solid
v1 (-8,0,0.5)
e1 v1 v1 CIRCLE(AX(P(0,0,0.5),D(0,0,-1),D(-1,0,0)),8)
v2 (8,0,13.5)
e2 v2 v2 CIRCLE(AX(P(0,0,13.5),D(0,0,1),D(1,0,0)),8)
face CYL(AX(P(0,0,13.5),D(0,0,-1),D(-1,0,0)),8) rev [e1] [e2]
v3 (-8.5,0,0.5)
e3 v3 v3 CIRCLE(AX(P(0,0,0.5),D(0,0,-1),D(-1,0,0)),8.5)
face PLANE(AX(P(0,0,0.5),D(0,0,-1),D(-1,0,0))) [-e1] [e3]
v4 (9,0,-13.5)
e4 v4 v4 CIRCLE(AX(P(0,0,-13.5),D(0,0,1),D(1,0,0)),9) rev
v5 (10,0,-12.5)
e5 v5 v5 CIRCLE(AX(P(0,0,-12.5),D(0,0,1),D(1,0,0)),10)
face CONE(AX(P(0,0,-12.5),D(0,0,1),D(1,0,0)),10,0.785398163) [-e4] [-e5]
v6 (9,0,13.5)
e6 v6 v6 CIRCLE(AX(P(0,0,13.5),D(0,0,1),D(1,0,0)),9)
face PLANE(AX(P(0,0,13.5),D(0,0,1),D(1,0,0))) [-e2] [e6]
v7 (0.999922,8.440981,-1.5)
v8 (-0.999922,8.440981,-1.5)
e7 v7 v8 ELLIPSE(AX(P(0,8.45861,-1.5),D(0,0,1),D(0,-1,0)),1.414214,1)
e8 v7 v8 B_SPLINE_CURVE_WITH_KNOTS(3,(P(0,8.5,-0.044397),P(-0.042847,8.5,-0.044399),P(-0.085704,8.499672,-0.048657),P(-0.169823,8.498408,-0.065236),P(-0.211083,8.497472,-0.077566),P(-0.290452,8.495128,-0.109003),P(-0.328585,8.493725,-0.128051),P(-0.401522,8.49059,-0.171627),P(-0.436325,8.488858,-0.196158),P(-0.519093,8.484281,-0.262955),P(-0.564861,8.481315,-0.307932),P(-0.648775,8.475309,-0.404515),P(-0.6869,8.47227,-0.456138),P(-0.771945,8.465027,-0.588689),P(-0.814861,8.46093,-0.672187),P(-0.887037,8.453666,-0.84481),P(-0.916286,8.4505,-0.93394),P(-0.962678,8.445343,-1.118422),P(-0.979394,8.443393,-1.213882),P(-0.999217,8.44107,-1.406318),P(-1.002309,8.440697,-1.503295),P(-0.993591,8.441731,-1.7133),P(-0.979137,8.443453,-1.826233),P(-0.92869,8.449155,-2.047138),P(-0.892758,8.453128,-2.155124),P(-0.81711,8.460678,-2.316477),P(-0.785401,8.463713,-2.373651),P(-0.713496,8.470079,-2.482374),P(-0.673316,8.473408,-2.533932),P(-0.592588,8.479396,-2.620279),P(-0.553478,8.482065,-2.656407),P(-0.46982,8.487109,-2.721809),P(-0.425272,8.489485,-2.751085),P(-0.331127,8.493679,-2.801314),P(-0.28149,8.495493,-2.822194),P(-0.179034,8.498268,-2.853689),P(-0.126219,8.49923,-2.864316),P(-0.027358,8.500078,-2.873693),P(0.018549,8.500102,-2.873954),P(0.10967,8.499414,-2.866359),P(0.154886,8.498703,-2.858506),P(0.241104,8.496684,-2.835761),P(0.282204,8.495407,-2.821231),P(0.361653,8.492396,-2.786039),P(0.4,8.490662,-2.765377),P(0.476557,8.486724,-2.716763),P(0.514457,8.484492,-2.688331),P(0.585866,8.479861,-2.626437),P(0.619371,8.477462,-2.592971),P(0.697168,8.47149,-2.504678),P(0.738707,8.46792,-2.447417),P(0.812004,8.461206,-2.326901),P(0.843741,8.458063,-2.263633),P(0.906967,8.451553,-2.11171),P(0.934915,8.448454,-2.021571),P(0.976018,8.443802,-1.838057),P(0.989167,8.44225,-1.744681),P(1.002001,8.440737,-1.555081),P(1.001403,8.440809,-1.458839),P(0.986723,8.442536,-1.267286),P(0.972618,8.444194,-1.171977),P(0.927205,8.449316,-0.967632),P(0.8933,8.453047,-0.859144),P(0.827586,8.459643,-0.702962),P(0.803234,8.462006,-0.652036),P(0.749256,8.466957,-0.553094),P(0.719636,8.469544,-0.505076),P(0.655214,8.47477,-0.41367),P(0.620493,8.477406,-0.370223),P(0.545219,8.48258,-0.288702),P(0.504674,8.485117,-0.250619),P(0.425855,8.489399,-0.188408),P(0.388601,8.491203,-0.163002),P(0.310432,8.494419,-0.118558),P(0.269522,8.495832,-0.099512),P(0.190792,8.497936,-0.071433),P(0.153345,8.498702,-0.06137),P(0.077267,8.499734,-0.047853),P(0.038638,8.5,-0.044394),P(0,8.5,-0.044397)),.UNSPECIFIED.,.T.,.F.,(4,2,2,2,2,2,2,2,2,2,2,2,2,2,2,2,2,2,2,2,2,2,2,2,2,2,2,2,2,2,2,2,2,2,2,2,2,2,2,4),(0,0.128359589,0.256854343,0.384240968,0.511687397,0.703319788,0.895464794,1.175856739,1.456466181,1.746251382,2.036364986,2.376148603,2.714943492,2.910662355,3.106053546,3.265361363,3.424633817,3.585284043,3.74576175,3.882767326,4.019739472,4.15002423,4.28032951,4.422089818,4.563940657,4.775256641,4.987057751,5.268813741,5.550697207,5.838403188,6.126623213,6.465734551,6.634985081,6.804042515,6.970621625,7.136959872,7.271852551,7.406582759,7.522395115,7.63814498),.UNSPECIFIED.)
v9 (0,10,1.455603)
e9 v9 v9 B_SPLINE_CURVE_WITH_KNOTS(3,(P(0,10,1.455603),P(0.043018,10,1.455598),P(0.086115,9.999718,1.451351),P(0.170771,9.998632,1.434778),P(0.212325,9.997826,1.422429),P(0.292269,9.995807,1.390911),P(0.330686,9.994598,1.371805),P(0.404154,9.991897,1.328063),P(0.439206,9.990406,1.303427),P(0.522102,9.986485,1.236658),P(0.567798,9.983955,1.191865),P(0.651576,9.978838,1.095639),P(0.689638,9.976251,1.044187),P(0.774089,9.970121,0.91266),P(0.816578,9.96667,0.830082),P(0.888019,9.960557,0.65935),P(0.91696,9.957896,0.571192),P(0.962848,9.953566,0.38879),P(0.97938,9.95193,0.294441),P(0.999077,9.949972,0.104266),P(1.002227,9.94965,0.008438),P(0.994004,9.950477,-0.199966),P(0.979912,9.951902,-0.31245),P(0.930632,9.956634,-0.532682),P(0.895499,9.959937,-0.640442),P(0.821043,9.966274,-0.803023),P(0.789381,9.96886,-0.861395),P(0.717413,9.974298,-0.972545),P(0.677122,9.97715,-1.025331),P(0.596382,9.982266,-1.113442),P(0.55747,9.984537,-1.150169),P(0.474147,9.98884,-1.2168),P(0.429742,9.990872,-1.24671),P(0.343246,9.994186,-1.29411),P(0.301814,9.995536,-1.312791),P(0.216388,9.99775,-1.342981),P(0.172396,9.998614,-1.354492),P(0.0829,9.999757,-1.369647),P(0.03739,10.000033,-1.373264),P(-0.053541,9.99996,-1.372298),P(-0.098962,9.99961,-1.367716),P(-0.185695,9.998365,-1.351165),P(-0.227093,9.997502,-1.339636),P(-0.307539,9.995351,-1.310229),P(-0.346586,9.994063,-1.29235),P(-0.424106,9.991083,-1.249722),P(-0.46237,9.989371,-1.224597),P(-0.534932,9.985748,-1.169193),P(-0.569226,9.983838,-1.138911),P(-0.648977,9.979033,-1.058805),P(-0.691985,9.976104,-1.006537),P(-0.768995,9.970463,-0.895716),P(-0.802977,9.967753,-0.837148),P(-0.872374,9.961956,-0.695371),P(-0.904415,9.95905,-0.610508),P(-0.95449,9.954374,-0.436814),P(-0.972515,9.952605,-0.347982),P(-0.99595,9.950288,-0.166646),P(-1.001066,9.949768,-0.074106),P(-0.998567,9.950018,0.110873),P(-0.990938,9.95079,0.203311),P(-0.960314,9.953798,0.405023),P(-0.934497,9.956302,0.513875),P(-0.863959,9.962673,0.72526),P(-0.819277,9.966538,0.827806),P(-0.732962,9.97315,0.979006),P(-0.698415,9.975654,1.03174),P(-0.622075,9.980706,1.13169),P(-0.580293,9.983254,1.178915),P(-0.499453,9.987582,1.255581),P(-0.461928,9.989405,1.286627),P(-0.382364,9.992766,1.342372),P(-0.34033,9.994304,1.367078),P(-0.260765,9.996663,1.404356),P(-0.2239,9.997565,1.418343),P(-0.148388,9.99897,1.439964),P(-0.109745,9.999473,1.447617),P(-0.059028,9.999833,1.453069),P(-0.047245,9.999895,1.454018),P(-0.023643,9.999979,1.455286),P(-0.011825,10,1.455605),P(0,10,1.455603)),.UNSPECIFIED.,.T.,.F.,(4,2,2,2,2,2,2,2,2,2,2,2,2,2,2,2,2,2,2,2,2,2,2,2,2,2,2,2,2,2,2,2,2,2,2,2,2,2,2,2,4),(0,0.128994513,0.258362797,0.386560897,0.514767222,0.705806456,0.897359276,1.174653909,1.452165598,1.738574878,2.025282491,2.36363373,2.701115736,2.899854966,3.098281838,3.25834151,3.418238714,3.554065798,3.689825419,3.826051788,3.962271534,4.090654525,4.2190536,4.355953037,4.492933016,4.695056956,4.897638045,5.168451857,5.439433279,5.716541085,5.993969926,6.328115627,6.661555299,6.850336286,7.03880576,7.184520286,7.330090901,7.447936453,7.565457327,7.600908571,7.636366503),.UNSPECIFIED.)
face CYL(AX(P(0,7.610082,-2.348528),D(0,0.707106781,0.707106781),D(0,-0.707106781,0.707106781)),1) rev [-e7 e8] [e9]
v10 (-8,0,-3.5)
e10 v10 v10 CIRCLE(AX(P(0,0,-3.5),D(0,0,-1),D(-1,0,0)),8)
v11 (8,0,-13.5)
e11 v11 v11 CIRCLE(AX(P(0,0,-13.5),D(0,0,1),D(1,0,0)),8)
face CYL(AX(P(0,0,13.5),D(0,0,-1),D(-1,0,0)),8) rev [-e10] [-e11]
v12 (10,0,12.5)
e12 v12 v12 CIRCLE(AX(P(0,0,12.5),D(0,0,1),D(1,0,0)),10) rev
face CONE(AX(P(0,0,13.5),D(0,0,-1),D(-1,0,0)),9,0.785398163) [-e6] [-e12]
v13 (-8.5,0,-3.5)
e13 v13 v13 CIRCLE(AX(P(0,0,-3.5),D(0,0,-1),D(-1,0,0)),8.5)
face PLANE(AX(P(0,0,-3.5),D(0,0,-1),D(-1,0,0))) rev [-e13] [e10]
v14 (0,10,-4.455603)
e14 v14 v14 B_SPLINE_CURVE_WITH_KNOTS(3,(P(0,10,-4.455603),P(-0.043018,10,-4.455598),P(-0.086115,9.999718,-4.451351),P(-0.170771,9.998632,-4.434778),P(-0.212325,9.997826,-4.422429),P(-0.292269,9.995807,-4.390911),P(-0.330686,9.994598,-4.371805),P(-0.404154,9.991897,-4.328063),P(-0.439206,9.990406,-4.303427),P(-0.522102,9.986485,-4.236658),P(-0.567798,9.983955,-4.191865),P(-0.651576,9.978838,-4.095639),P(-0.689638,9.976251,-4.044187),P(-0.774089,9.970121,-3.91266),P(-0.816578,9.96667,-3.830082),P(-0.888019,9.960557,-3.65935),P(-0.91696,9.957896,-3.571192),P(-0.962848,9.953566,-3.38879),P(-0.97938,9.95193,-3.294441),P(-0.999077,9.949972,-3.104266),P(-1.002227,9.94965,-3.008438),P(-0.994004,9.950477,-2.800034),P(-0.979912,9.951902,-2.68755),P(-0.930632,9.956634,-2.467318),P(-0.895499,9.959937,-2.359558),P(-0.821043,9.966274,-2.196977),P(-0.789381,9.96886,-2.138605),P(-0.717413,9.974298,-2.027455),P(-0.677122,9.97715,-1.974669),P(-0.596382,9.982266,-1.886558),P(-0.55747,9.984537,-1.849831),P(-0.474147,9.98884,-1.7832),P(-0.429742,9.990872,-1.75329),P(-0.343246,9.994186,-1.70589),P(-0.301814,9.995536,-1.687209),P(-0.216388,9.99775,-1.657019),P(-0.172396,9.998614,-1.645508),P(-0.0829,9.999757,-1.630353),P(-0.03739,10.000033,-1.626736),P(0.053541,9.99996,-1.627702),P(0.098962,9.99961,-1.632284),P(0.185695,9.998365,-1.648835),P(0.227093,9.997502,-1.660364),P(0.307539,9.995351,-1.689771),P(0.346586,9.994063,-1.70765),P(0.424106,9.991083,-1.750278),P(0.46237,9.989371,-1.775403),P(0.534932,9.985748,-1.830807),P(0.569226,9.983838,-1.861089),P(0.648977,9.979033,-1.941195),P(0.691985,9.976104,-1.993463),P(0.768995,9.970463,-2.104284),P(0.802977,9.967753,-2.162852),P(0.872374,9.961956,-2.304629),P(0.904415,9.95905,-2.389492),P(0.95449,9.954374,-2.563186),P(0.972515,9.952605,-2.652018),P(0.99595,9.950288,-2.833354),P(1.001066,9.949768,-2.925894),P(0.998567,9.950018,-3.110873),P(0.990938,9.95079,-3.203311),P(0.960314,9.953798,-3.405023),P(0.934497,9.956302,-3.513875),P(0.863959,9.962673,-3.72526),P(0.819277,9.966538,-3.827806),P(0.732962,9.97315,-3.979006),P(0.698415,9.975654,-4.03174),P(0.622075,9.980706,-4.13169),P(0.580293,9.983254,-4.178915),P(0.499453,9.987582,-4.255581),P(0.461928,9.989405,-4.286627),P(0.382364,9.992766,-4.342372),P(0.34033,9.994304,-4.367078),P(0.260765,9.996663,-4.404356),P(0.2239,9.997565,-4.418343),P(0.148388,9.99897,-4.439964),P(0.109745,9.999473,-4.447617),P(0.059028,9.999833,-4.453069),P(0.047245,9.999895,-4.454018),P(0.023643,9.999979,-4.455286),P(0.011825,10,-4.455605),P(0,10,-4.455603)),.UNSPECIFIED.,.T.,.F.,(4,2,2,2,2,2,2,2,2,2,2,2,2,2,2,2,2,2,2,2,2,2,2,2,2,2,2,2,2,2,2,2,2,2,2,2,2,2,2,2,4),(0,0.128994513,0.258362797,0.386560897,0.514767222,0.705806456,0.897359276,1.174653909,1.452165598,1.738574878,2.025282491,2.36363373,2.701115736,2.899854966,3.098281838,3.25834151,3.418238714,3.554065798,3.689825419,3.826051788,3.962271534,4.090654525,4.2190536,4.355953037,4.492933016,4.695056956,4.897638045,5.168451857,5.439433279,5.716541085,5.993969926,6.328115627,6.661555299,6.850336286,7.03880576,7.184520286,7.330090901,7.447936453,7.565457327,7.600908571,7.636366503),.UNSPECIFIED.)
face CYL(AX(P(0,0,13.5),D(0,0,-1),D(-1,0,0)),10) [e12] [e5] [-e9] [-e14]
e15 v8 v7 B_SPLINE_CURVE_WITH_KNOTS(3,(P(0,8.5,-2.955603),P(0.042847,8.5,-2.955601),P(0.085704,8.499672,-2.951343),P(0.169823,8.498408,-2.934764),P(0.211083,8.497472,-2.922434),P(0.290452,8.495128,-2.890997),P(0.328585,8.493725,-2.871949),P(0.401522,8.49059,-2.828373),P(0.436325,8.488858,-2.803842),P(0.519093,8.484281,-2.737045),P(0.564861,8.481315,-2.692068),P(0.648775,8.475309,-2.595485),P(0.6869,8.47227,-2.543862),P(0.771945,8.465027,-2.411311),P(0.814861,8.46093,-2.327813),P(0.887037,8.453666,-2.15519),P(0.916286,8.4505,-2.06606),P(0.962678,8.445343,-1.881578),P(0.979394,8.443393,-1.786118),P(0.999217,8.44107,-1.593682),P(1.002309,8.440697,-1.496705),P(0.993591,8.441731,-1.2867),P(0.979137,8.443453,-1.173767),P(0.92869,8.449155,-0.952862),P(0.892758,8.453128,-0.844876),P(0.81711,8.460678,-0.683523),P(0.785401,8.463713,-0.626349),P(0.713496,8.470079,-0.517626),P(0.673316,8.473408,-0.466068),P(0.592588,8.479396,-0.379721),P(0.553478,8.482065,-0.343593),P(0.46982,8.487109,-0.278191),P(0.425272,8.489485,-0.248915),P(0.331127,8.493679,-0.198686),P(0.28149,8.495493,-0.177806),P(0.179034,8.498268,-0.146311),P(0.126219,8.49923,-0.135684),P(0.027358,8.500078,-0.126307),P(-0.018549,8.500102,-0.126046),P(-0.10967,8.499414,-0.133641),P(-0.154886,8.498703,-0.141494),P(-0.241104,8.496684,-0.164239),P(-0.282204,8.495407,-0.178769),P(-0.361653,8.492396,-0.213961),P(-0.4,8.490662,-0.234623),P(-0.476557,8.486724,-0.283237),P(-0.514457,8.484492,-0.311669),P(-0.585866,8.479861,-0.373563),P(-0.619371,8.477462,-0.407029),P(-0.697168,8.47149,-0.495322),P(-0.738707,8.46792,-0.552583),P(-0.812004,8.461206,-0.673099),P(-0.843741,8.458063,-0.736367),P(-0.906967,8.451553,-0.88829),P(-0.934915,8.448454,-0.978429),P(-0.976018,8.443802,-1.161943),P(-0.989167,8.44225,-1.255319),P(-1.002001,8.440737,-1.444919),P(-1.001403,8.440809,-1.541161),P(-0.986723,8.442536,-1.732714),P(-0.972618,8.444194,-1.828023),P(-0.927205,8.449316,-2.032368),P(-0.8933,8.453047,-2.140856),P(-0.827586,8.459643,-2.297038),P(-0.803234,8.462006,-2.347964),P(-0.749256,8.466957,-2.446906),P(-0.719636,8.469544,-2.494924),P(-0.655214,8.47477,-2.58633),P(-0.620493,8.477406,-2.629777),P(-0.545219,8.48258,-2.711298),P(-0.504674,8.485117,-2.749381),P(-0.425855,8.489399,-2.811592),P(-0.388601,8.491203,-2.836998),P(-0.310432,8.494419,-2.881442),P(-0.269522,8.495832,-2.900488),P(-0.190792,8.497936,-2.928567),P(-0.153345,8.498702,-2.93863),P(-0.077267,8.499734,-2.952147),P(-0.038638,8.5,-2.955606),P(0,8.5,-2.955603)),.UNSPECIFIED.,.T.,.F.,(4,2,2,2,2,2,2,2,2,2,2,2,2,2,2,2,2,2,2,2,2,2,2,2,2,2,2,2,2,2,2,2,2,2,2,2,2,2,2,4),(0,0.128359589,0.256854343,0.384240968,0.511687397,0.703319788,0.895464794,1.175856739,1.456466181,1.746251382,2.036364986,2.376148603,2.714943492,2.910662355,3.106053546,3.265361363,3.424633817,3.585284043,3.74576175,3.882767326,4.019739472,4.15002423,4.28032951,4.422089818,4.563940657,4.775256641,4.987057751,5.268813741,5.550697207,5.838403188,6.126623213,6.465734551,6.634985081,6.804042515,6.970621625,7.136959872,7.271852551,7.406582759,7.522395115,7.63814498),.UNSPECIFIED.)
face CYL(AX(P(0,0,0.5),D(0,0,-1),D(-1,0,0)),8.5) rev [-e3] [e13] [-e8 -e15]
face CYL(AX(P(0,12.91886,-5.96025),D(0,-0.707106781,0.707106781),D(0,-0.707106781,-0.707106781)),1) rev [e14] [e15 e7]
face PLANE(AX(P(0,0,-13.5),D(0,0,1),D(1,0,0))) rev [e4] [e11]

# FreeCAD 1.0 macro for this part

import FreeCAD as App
import Part
import Sketcher


def edges_at(feature, points):
    """Names of the edges that pass closest to the given points."""
    edges = feature.Shape.Edges
    near = lambda p: min(range(len(edges)), key=lambda i: edges[i].distToShape(Part.Vertex(*p))[0])
    return sorted({f"Edge{near(p) + 1}" for p in points})

doc = App.newDocument("Part")
params = doc.addObject("Spreadsheet::Sheet", "Params")
for row, (alias, value) in enumerate([
    ("sketch1_diameter", "20 mm"),
    ("sketch1_diameter2", "16 mm"),
    ("pad1_length", "27 mm"),
    ("chamfer_size", "1 mm"),
    ("sketch2_diameter", "17 mm"),
    ("pocket1_length", "4 mm"),
    ("sketch3_diameter", "2 mm"),
], start=1):
    params.set(f"A{row}", alias)
    params.set(f"B{row}", "=" + value)
    params.setAlias(f"B{row}", alias)

body = doc.addObject("PartDesign::Body", "Body")

sketch1 = doc.addObject("Sketcher::SketchObject", "Sketch")
body.addObject(sketch1)
sketch1.AttachmentSupport = (doc.XY_Plane, [""])
sketch1.MapMode = "FlatFace"
sketch1.addGeometry(Part.Circle(App.Vector(0, 0, 0), App.Vector(0, 0, 1), 10), False)
sketch1.addGeometry(Part.Circle(App.Vector(0, 0, 0), App.Vector(0, 0, 1), 8), False)
sketch1.addConstraint(Sketcher.Constraint("Coincident", 0, 3, -1, 1))
sketch1.addConstraint(Sketcher.Constraint("Coincident", 1, 3, -1, 1))
sketch1.addConstraint(Sketcher.Constraint("Diameter", 0, 20.0))
sketch1.addConstraint(Sketcher.Constraint("Diameter", 1, 16.0))
sketch1.setExpression("Constraints[2]", "Params.sketch1_diameter")
sketch1.setExpression("Constraints[3]", "Params.sketch1_diameter2")
pad1 = doc.addObject("PartDesign::Pad", "Pad")
body.addObject(pad1)
pad1.Profile = sketch1
pad1.setExpression("Length", "Params.pad1_length")
pad1.Midplane = True
doc.recompute()

chamfer = doc.addObject("PartDesign::Chamfer", "Chamfer")
body.addObject(chamfer)
chamfer.Base = (pad1, edges_at(pad1, [(-10, 0, -13.5), (-10, 0, 13.5)]))
chamfer.setExpression("Size", "Params.chamfer_size")

sketch2 = doc.addObject("Sketcher::SketchObject", "Sketch001")
body.addObject(sketch2)
sketch2.AttachmentSupport = (doc.XY_Plane, [""])
sketch2.MapMode = "FlatFace"
sketch2.AttachmentOffset = App.Placement(App.Vector(0, 0, -3.5), App.Rotation())
sketch2.addGeometry(Part.Circle(App.Vector(0, 0, 0), App.Vector(0, 0, 1), 8), False)
sketch2.addConstraint(Sketcher.Constraint("Coincident", 0, 3, -1, 1))
sketch2.addConstraint(Sketcher.Constraint("Diameter", 0, 17.0))
sketch2.setExpression("Constraints[1]", "Params.sketch2_diameter")
pocket1 = doc.addObject("PartDesign::Pocket", "Pocket")
body.addObject(pocket1)
pocket1.Profile = sketch2
pocket1.setExpression("Length", "Params.pocket1_length")
pocket1.Reversed = True

sketch3 = doc.addObject("Sketcher::SketchObject", "Sketch002")
body.addObject(sketch3)
sketch3.Placement = App.Placement(App.Vector(0, 12.91886, -5.96025), App.Rotation(App.Vector(0, 0.707106781, 0.707106781), App.Vector(-0.999999999, 0, 0), App.Vector(0, -0.707106781, 0.707106781), "ZXY"))
sketch3.addGeometry(Part.Circle(App.Vector(0, 0, 0), App.Vector(0, 0, 1), 1), False)
sketch3.addConstraint(Sketcher.Constraint("Coincident", 0, 3, -1, 1))
sketch3.addConstraint(Sketcher.Constraint("Diameter", 0, 2.0))
sketch3.setExpression("Constraints[1]", "Params.sketch3_diameter")

sketch4 = doc.addObject("Sketcher::SketchObject", "Sketch003")
body.addObject(sketch4)
sketch4.AttachmentSupport = (doc.YZ_Plane, [""])
sketch4.MapMode = "FlatFace"
sketch4.addGeometry(Part.LineSegment(App.Vector(13, -6, 0), App.Vector(8, -2, 0)), False)
sketch4.addGeometry(Part.LineSegment(App.Vector(8, -2, 0), App.Vector(13, 3, 0)), False)
sketch4.addConstraint(Sketcher.Constraint("Coincident", 0, 2, 1, 1))
sketch4.addConstraint(Sketcher.Constraint("Perpendicular", 0, 1))
sketch4.addConstraint(Sketcher.Constraint("Vertical", 0, 1, 1, 2))
sketch4.addConstraint(Sketcher.Constraint("Equal", 0, 1))
sketch4.addConstraint(Sketcher.Constraint("DistanceY", 0, 2, -1, 1, 1.5))
sketch4.addConstraint(Sketcher.Constraint("DistanceY", 0, 1, 1, 2, 8.920499))
sketch4.addConstraint(Sketcher.Constraint("DistanceX", -1, 1, 0, 1, 12.91886))
doc.recompute()

subtractivepipe = doc.addObject("PartDesign::SubtractivePipe", "SubtractivePipe")
body.addObject(subtractivepipe)
subtractivepipe.Profile = sketch3
subtractivepipe.Spine = (sketch4, ["Edge1", "Edge2"])
subtractivepipe.Transition = "Right corner"

doc.recompute()
